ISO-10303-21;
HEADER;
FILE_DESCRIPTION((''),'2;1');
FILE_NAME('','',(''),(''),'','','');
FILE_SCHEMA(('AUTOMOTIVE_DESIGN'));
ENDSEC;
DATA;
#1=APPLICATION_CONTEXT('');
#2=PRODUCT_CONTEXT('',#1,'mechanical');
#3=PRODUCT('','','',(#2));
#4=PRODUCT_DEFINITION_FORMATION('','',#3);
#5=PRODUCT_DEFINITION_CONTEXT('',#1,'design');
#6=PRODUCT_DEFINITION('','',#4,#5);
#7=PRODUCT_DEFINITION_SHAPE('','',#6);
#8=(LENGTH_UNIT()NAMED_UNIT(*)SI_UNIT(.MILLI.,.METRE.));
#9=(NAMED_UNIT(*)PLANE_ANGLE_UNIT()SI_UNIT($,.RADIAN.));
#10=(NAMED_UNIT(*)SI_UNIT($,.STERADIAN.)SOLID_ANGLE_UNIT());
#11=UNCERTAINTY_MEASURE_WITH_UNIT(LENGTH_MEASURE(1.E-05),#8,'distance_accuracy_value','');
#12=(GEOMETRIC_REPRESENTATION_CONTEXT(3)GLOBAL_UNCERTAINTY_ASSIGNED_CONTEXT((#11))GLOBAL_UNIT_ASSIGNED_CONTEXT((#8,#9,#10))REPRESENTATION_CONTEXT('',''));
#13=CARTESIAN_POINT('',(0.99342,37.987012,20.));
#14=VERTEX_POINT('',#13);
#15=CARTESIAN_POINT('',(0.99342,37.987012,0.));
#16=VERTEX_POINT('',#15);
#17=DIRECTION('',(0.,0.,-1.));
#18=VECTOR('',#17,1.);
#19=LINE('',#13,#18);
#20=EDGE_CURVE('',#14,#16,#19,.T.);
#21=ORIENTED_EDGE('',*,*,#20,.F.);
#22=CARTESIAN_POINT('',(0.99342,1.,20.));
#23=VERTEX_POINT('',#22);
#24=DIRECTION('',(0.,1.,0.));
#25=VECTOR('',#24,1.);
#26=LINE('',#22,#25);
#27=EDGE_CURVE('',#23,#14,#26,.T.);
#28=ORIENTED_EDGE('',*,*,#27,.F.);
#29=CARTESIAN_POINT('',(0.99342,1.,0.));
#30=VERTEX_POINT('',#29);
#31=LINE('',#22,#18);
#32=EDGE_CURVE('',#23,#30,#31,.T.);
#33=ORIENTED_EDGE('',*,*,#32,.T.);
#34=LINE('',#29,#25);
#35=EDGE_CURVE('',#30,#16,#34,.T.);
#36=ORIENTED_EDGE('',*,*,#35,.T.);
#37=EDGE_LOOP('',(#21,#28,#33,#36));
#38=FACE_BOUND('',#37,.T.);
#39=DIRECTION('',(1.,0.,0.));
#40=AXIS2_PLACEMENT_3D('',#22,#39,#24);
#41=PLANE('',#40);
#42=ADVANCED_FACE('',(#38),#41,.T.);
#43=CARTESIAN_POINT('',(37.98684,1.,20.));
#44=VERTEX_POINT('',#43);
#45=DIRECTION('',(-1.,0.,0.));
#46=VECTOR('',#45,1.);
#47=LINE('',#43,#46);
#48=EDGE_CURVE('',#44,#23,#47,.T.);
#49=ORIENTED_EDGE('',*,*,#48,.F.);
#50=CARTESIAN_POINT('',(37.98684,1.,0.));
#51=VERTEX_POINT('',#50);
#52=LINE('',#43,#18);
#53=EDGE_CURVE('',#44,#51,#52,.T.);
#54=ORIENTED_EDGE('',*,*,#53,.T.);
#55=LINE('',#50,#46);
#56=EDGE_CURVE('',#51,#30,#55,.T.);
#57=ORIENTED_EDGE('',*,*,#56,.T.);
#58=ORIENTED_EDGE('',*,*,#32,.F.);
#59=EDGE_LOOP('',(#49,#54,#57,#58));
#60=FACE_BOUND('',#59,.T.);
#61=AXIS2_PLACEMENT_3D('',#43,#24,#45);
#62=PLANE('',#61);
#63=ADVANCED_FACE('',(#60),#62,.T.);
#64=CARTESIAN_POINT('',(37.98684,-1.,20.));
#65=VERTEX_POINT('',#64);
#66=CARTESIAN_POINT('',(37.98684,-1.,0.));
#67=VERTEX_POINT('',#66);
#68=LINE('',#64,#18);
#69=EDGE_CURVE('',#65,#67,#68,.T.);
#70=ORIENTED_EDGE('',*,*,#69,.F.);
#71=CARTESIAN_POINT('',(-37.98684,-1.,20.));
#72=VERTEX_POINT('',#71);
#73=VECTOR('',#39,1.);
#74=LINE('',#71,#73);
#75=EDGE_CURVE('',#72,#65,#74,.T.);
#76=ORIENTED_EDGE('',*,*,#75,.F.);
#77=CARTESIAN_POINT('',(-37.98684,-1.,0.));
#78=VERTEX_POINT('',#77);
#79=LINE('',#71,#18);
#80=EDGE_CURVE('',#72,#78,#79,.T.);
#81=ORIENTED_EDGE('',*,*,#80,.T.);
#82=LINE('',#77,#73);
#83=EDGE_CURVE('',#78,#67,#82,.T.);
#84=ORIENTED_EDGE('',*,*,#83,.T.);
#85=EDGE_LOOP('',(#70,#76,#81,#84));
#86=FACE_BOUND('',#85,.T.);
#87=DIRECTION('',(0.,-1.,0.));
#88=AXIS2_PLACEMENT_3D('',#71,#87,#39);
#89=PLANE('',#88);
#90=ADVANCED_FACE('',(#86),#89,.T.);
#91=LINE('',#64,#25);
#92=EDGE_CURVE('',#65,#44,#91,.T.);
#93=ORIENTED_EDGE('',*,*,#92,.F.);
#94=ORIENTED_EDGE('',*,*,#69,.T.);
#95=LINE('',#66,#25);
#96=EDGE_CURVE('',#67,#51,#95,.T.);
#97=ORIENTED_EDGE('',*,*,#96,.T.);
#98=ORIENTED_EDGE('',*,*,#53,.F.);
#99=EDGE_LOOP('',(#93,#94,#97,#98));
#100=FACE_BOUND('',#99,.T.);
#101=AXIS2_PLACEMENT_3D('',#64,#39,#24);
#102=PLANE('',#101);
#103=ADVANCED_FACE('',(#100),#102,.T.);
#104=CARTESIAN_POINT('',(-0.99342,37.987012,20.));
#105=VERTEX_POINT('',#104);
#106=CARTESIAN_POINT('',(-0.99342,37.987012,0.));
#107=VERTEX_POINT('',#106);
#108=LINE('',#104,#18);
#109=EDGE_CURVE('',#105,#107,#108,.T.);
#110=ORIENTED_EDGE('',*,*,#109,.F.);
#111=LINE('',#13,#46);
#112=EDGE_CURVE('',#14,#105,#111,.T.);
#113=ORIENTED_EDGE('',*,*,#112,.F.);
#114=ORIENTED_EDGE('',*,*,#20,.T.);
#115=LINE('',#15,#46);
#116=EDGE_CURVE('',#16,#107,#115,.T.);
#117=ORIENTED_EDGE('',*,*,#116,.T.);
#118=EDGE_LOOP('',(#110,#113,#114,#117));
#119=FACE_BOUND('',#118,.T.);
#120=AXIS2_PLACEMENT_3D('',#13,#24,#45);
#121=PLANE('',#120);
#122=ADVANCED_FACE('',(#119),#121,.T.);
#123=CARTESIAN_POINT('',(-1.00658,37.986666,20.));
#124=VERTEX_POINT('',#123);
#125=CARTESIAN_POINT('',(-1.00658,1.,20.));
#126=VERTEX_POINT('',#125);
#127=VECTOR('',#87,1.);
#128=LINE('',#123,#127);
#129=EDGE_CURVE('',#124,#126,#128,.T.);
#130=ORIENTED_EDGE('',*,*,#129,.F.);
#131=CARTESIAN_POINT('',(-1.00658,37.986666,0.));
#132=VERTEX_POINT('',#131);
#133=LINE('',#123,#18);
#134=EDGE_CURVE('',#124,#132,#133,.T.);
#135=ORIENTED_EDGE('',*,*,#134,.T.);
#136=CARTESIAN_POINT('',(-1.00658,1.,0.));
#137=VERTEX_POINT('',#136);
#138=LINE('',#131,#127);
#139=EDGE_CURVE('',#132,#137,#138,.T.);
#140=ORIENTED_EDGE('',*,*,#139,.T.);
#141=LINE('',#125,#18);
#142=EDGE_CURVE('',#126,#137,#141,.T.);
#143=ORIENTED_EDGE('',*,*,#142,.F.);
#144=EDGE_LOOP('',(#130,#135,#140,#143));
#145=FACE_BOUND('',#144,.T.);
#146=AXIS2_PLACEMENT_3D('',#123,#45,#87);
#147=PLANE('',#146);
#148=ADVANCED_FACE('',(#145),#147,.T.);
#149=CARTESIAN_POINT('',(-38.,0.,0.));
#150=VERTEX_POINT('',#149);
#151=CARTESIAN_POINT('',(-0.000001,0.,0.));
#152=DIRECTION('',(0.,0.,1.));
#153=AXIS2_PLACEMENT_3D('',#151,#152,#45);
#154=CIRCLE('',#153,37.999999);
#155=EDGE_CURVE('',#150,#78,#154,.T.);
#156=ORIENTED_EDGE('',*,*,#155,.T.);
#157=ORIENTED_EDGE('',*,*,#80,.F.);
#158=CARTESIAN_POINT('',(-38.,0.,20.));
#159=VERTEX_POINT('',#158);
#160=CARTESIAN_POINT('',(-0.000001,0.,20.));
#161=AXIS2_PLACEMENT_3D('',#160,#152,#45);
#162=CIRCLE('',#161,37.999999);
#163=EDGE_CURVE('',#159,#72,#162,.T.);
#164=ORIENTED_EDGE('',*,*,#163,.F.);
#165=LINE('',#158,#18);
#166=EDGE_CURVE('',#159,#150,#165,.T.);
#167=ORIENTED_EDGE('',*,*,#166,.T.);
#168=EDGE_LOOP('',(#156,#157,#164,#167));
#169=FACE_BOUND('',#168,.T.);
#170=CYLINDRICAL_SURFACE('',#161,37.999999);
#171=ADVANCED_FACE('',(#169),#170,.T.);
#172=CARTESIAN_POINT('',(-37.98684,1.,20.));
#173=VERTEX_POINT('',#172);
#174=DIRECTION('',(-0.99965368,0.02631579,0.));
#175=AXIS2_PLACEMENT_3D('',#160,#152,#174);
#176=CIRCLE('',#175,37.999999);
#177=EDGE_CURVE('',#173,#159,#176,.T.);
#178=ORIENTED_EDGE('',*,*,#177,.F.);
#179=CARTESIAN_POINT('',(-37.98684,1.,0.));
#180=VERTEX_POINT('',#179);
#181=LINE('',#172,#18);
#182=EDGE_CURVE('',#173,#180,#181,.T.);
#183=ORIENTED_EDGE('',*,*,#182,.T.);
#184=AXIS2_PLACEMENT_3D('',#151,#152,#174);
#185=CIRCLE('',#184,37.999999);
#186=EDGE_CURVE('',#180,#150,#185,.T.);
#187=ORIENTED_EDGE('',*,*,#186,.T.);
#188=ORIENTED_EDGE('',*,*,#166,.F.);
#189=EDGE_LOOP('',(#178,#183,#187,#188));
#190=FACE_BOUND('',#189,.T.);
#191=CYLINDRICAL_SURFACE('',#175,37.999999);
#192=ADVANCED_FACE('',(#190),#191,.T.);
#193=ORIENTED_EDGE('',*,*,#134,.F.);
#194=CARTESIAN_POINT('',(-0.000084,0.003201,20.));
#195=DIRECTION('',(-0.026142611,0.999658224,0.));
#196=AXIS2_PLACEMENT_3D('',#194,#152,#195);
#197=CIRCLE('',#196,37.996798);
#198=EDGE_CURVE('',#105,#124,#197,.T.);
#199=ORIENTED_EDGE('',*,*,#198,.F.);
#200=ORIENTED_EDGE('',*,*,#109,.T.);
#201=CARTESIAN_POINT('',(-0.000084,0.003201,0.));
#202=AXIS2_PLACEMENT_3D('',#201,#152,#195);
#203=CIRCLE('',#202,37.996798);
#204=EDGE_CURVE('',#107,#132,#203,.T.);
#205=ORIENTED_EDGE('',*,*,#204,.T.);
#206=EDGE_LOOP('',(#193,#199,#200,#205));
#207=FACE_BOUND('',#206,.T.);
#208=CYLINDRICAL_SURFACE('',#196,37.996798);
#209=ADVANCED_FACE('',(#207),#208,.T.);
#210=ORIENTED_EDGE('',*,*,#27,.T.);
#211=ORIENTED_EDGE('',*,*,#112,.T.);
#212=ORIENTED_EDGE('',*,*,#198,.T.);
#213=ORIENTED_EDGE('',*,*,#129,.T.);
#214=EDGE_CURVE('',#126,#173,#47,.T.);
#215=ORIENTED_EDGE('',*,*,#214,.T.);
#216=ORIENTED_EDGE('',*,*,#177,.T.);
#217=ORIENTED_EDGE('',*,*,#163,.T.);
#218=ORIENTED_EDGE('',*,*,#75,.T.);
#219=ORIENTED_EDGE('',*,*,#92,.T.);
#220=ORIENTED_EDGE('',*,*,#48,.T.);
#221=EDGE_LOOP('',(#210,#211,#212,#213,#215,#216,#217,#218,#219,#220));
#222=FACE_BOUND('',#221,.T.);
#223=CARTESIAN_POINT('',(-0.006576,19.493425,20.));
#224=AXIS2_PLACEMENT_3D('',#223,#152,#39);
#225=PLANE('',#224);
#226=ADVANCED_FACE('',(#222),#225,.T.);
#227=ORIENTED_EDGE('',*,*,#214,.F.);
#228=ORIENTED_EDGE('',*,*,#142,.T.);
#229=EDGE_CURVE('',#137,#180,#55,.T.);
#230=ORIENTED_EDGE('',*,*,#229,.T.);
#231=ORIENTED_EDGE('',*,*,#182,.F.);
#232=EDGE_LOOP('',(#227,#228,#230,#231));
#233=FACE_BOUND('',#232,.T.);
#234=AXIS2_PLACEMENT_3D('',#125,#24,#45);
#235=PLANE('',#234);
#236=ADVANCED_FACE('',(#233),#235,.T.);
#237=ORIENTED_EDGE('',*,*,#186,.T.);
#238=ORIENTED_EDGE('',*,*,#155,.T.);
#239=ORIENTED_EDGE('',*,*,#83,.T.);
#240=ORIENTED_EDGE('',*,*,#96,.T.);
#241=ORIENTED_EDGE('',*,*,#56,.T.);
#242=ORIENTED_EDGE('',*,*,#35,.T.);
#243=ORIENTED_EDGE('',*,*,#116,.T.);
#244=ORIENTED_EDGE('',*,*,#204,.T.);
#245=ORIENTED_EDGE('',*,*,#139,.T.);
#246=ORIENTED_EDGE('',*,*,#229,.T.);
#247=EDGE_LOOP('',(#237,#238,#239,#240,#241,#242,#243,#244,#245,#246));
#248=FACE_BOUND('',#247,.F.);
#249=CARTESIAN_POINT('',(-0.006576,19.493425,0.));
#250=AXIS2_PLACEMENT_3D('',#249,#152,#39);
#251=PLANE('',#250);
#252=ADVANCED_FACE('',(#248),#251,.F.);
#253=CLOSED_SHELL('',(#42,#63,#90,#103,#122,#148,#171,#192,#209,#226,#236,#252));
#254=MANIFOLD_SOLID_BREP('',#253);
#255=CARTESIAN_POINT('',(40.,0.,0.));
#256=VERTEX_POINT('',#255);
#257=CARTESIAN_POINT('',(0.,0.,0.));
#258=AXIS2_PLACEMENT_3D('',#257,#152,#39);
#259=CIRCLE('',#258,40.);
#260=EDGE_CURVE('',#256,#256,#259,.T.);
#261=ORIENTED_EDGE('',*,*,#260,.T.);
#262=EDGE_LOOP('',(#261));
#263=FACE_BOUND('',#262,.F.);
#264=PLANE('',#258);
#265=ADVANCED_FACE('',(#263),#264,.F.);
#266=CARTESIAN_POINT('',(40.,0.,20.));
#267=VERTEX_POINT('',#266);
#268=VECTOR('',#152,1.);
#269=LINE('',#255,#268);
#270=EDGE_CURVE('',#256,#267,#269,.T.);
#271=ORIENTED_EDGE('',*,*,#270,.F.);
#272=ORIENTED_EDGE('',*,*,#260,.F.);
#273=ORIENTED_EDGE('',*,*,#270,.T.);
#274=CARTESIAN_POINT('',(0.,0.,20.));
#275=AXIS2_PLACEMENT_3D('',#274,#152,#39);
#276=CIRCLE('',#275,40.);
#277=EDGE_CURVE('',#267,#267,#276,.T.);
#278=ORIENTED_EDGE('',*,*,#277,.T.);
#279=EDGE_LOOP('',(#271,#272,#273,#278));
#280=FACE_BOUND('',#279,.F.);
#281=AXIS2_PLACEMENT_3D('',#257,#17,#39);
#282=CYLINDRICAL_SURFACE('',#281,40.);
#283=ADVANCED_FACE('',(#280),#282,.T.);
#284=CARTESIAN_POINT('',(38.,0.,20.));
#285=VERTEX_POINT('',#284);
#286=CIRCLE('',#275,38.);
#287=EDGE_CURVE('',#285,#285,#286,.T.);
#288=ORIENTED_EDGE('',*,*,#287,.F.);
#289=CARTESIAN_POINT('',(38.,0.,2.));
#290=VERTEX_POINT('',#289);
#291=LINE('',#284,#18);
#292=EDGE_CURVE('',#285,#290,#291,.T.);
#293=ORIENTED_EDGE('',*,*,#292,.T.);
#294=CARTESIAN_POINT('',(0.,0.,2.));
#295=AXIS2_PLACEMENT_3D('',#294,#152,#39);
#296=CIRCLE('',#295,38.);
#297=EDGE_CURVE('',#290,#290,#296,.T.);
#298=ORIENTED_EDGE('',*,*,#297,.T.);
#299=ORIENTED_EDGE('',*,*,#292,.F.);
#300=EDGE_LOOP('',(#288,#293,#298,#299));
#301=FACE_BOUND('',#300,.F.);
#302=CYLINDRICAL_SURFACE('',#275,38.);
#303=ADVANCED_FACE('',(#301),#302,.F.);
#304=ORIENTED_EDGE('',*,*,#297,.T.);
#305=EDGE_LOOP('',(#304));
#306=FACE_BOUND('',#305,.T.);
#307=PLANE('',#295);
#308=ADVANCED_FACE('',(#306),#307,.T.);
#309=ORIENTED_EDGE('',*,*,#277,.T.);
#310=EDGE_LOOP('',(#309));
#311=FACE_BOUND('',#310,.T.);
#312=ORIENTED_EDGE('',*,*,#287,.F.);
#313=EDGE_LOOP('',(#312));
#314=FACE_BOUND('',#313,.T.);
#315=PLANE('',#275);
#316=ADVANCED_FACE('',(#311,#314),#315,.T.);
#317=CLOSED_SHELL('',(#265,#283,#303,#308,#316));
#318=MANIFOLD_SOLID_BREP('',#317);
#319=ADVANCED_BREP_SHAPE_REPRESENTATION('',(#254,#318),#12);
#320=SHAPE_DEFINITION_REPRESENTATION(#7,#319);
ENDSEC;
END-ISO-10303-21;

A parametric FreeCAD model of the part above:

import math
import FreeCAD as App
import Part
import Sketcher

V = App.Vector

doc = App.newDocument("Part")
body = doc.addObject("PartDesign::Body", "Body")

# Sketch on XY plane
sketch1 = body.newObject("Sketcher::SketchObject", "Sketch")
sketch1.AttachmentSupport = (doc.getObject("XY_Plane"), [""])
sketch1.MapMode = "FlatFace"
sketch1.addGeometry(Part.Circle(V(0, 0, 0), V(0, 0, 1), 40), False)
sketch1.addConstraint(Sketcher.Constraint("Coincident", 0, 3, -1, 1))
sketch1.addConstraint(Sketcher.Constraint("Diameter", 0, 80.0))
pad1 = body.newObject("PartDesign::Pad", "Pad")
pad1.Profile = sketch1
pad1.Length = 20

# Sketch on XY plane
sketch2 = body.newObject("Sketcher::SketchObject", "Sketch001")
sketch2.AttachmentSupport = (doc.getObject("XY_Plane"), [""])
sketch2.MapMode = "FlatFace"
sketch2.AttachmentOffset = App.Placement(V(0, 0, 20), App.Rotation())
sketch2.addGeometry(Part.Circle(V(0, 0, 0), V(0, 0, 1), 38), False)
sketch2.addConstraint(Sketcher.Constraint("Coincident", 0, 3, -1, 1))
sketch2.addConstraint(Sketcher.Constraint("Diameter", 0, 76.0))
pocket1 = body.newObject("PartDesign::Pocket", "Pocket")
pocket1.Profile = sketch2
pocket1.Length = 18
body2 = doc.addObject("PartDesign::Body", "Body001")

# Sketch on XY plane
sketch3 = body2.newObject("Sketcher::SketchObject", "Sketch002")
sketch3.AttachmentSupport = (doc.getObject("XY_Plane001"), [""])
sketch3.MapMode = "FlatFace"
sketch3.AttachmentOffset = App.Placement(V(0, 0, 20), App.Rotation())
sketch3.addGeometry(Part.LineSegment(V(-1.007, 37.987, 0), V(-1.007, 1, 0)), False)
sketch3.addGeometry(Part.LineSegment(V(-1.007, 1, 0), V(-37.987, 1, 0)), False)
sketch3.addGeometry(Part.ArcOfCircle(Part.Circle(V(0, 0, 0), V(0, 0, 1), 38), math.radians(178.49), math.radians(180)), False)
sketch3.addGeometry(Part.ArcOfCircle(Part.Circle(V(0, 0, 0), V(0, 0, 1), 38), math.radians(180), math.radians(181.51)), False)
sketch3.addGeometry(Part.LineSegment(V(-37.987, -1, 0), V(37.987, -1, 0)), False)
sketch3.addGeometry(Part.LineSegment(V(37.987, -1, 0), V(37.987, 1, 0)), False)
sketch3.addGeometry(Part.LineSegment(V(37.987, 1, 0), V(0.993, 1, 0)), False)
sketch3.addGeometry(Part.LineSegment(V(0.993, 1, 0), V(0.993, 37.987, 0)), False)
sketch3.addGeometry(Part.LineSegment(V(0.993, 37.987, 0), V(-0.993, 37.987, 0)), False)
sketch3.addGeometry(Part.ArcOfCircle(Part.Circle(V(0, 0.003, 0), V(0, 0, 1), 37.997), math.radians(91.5), math.radians(91.52)), False)
sketch3.addConstraint(Sketcher.Constraint("Coincident", 0, 2, 1, 1))
sketch3.addConstraint(Sketcher.Constraint("Coincident", 1, 2, 2, 1))
sketch3.addConstraint(Sketcher.Constraint("Tangent", 2, 2, 3, 1))
sketch3.addConstraint(Sketcher.Constraint("Coincident", 3, 2, 4, 1))
sketch3.addConstraint(Sketcher.Constraint("Coincident", 4, 2, 5, 1))
sketch3.addConstraint(Sketcher.Constraint("Coincident", 5, 2, 6, 1))
sketch3.addConstraint(Sketcher.Constraint("Coincident", 6, 2, 7, 1))
sketch3.addConstraint(Sketcher.Constraint("Coincident", 7, 2, 8, 1))
sketch3.addConstraint(Sketcher.Constraint("Coincident", 8, 2, 9, 1))
sketch3.addConstraint(Sketcher.Constraint("Coincident", 9, 2, 0, 1))
sketch3.addConstraint(Sketcher.Constraint("Vertical", 0))
sketch3.addConstraint(Sketcher.Constraint("Horizontal", 1))
sketch3.addConstraint(Sketcher.Constraint("Horizontal", 4))
sketch3.addConstraint(Sketcher.Constraint("Vertical", 5))
sketch3.addConstraint(Sketcher.Constraint("Horizontal", 6))
sketch3.addConstraint(Sketcher.Constraint("Vertical", 7))
sketch3.addConstraint(Sketcher.Constraint("Horizontal", 8))
sketch3.addConstraint(Sketcher.Constraint("Coincident", 2, 3, -1, 1))
sketch3.addConstraint(Sketcher.Constraint("Equal", 2, 3))
sketch3.addConstraint(Sketcher.Constraint("Symmetric", 1, 2, 4, 2, -1, 1))
sketch3.addConstraint(Sketcher.Constraint("PointOnObject", 2, 2, -1))
sketch3.addConstraint(Sketcher.Constraint("Horizontal", 1, 2, 5, 2))
sketch3.addConstraint(Sketcher.Constraint("Radius", 2, 37.999999))
sketch3.addConstraint(Sketcher.Constraint("DistanceY", 5, 1, 5, 2, 2.0))
sketch3.addConstraint(Sketcher.Constraint("DistanceX", 0, 2, 6, 2, 2.0))
sketch3.addConstraint(Sketcher.Constraint("Radius", 9, 37.996798))
sketch3.addConstraint(Sketcher.Constraint("DistanceX", 1, 2, 1, 1, 36.98026))
sketch3.addConstraint(Sketcher.Constraint("DistanceX", 8, 2, 8, 1, 1.98684))
sketch3.addConstraint(Sketcher.Constraint("DistanceY", -1, 1, 9, 3, 0.003201))
sketch3.addConstraint(Sketcher.Constraint("DistanceY", 0, 2, 0, 1, 36.986666))
pad2 = body2.newObject("PartDesign::Pad", "Pad001")
pad2.Profile = sketch3
pad2.Length = 20
pad2.Reversed = True

doc.recompute()
